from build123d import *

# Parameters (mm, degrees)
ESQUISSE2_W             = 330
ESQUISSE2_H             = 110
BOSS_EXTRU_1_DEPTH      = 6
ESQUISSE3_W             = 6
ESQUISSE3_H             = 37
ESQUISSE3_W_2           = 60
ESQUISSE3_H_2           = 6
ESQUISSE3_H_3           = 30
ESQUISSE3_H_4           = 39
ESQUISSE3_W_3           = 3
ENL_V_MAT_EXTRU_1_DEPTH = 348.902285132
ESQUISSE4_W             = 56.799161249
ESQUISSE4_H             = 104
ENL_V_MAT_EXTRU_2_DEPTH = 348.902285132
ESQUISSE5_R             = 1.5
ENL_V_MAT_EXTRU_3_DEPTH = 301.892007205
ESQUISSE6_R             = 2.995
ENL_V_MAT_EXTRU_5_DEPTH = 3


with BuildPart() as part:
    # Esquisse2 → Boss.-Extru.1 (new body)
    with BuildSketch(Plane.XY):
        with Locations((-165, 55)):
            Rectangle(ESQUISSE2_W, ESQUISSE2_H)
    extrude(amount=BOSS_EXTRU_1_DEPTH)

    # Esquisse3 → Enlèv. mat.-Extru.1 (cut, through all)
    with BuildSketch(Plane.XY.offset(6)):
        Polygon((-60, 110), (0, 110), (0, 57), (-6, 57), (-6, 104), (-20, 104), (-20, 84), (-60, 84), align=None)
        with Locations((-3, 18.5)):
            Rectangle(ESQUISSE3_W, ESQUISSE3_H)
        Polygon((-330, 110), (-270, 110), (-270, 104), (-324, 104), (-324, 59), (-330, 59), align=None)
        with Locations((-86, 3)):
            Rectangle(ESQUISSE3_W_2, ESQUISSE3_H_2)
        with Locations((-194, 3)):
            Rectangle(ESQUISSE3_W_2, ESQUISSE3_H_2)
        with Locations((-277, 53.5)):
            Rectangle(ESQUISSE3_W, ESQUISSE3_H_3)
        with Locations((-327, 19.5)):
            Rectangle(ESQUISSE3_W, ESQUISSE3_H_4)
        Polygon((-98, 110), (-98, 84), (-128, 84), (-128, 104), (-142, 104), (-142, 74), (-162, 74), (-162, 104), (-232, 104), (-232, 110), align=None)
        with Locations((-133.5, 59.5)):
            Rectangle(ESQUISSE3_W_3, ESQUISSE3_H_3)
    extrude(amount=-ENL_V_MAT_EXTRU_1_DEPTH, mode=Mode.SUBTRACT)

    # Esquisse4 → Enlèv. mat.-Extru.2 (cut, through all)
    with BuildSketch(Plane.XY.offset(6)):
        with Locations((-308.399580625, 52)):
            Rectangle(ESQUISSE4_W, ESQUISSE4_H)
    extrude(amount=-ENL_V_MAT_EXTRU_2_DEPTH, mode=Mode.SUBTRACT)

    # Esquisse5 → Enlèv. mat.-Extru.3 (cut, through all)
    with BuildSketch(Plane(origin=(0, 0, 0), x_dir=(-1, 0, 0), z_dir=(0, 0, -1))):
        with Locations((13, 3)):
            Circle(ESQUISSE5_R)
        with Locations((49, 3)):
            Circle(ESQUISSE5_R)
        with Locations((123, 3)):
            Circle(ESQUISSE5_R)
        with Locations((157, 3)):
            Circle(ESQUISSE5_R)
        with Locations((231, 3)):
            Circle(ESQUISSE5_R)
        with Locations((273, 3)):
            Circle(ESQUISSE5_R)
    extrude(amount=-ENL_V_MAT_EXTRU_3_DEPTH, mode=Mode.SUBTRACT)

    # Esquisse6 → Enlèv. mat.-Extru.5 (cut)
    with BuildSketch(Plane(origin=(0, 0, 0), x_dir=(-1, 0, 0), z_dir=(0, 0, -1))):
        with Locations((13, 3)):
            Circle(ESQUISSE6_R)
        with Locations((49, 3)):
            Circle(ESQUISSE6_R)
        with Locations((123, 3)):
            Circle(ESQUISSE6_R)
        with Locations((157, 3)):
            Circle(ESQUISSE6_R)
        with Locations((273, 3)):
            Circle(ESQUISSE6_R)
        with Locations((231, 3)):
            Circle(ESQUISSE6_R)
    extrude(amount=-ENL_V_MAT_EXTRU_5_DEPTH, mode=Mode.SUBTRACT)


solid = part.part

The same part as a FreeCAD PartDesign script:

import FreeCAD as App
import Part
import Sketcher

doc = App.newDocument("Part")
params = doc.addObject("Spreadsheet::Sheet", "Params")
for row, (alias, value) in enumerate([
    ("sketch1_width", "330 mm"),
    ("sketch1_height", "110 mm"),
    ("pad1_length", "6 mm"),
    ("sketch2_width", "60 mm"),
    ("sketch2_width2", "40 mm"),
    ("sketch2_width3", "14 mm"),
    ("sketch2_width4", "134 mm"),
    ("sketch2_width5", "70 mm"),
    ("sketch3_height", "104 mm"),
    ("sketch4_diameter", "3 mm"),
    ("sketch5_diameter", "5.99 mm"),
    ("pocket4_length", "3 mm"),
], start=1):
    params.set(f"A{row}", alias)
    params.set(f"B{row}", "=" + value)
    params.setAlias(f"B{row}", alias)

body = doc.addObject("PartDesign::Body", "Body")

# Sketch on XY plane
sketch1 = body.newObject("Sketcher::SketchObject", "Sketch")
sketch1.AttachmentSupport = (doc.getObject("XY_Plane"), [""])
sketch1.MapMode = "FlatFace"
sketch1.addGeometry(Part.LineSegment(App.Vector(-330, 110, 0), App.Vector(-330, 0, 0)), False)
sketch1.addGeometry(Part.LineSegment(App.Vector(-330, 0, 0), App.Vector(0, 0, 0)), False)
sketch1.addGeometry(Part.LineSegment(App.Vector(0, 0, 0), App.Vector(0, 110, 0)), False)
sketch1.addGeometry(Part.LineSegment(App.Vector(0, 110, 0), App.Vector(-330, 110, 0)), False)
sketch1.addConstraint(Sketcher.Constraint("Coincident", 0, 2, 1, 1))
sketch1.addConstraint(Sketcher.Constraint("Coincident", 1, 2, 2, 1))
sketch1.addConstraint(Sketcher.Constraint("Coincident", 2, 2, 3, 1))
sketch1.addConstraint(Sketcher.Constraint("Coincident", 3, 2, 0, 1))
sketch1.addConstraint(Sketcher.Constraint("Vertical", 0))
sketch1.addConstraint(Sketcher.Constraint("Horizontal", 1))
sketch1.addConstraint(Sketcher.Constraint("Vertical", 2))
sketch1.addConstraint(Sketcher.Constraint("Horizontal", 3))
sketch1.addConstraint(Sketcher.Constraint("Coincident", 1, 2, -1, 1))
sketch1.addConstraint(Sketcher.Constraint("DistanceX", 1, 1, 1, 2, 330.0))
sketch1.addConstraint(Sketcher.Constraint("DistanceY", 0, 2, 0, 1, 110.0))
sketch1.setExpression("Constraints[9]", "Params.sketch1_width")
sketch1.setExpression("Constraints[10]", "Params.sketch1_height")
pad1 = body.newObject("PartDesign::Pad", "Pad")
pad1.Profile = sketch1
pad1.setExpression("Length", "Params.pad1_length")

# Sketch on XY plane
sketch2 = body.newObject("Sketcher::SketchObject", "Sketch001")
sketch2.AttachmentSupport = (doc.getObject("XY_Plane"), [""])
sketch2.MapMode = "FlatFace"
sketch2.AttachmentOffset = App.Placement(App.Vector(0, 0, 6), App.Rotation())
sketch2.addGeometry(Part.LineSegment(App.Vector(0, 110, 0), App.Vector(-60, 110, 0)), False)
sketch2.addGeometry(Part.LineSegment(App.Vector(-60, 110, 0), App.Vector(-60, 84, 0)), False)
sketch2.addGeometry(Part.LineSegment(App.Vector(-60, 84, 0), App.Vector(-20, 84, 0)), False)
sketch2.addGeometry(Part.LineSegment(App.Vector(-20, 84, 0), App.Vector(-20, 104, 0)), False)
sketch2.addGeometry(Part.LineSegment(App.Vector(-20, 104, 0), App.Vector(-6, 104, 0)), False)
sketch2.addGeometry(Part.LineSegment(App.Vector(-6, 104, 0), App.Vector(-6, 57, 0)), False)
sketch2.addGeometry(Part.LineSegment(App.Vector(-6, 57, 0), App.Vector(0, 57, 0)), False)
sketch2.addGeometry(Part.LineSegment(App.Vector(0, 57, 0), App.Vector(0, 110, 0)), False)
sketch2.addGeometry(Part.LineSegment(App.Vector(-6, 37, 0), App.Vector(-6, 0, 0)), False)
sketch2.addGeometry(Part.LineSegment(App.Vector(-6, 0, 0), App.Vector(0, 0, 0)), False)
sketch2.addGeometry(Part.LineSegment(App.Vector(0, 0, 0), App.Vector(0, 37, 0)), False)
sketch2.addGeometry(Part.LineSegment(App.Vector(0, 37, 0), App.Vector(-6, 37, 0)), False)
sketch2.addGeometry(Part.LineSegment(App.Vector(-270, 110, 0), App.Vector(-330, 110, 0)), False)
sketch2.addGeometry(Part.LineSegment(App.Vector(-330, 110, 0), App.Vector(-330, 59, 0)), False)
sketch2.addGeometry(Part.LineSegment(App.Vector(-330, 59, 0), App.Vector(-324, 59, 0)), False)
sketch2.addGeometry(Part.LineSegment(App.Vector(-324, 59, 0), App.Vector(-324, 104, 0)), False)
sketch2.addGeometry(Part.LineSegment(App.Vector(-324, 104, 0), App.Vector(-270, 104, 0)), False)
sketch2.addGeometry(Part.LineSegment(App.Vector(-270, 104, 0), App.Vector(-270, 110, 0)), False)
sketch2.addGeometry(Part.LineSegment(App.Vector(-116, 6, 0), App.Vector(-116, 0, 0)), False)
sketch2.addGeometry(Part.LineSegment(App.Vector(-116, 0, 0), App.Vector(-56, 0, 0)), False)
sketch2.addGeometry(Part.LineSegment(App.Vector(-56, 0, 0), App.Vector(-56, 6, 0)), False)
sketch2.addGeometry(Part.LineSegment(App.Vector(-56, 6, 0), App.Vector(-116, 6, 0)), False)
sketch2.addGeometry(Part.LineSegment(App.Vector(-224, 6, 0), App.Vector(-224, 0, 0)), False)
sketch2.addGeometry(Part.LineSegment(App.Vector(-224, 0, 0), App.Vector(-164, 0, 0)), False)
sketch2.addGeometry(Part.LineSegment(App.Vector(-164, 0, 0), App.Vector(-164, 6, 0)), False)
sketch2.addGeometry(Part.LineSegment(App.Vector(-164, 6, 0), App.Vector(-224, 6, 0)), False)
sketch2.addGeometry(Part.LineSegment(App.Vector(-280, 68.5, 0), App.Vector(-280, 38.5, 0)), False)
sketch2.addGeometry(Part.LineSegment(App.Vector(-280, 38.5, 0), App.Vector(-274, 38.5, 0)), False)
sketch2.addGeometry(Part.LineSegment(App.Vector(-274, 38.5, 0), App.Vector(-274, 68.5, 0)), False)
sketch2.addGeometry(Part.LineSegment(App.Vector(-274, 68.5, 0), App.Vector(-280, 68.5, 0)), False)
sketch2.addGeometry(Part.LineSegment(App.Vector(-330, 39, 0), App.Vector(-330, 0, 0)), False)
sketch2.addGeometry(Part.LineSegment(App.Vector(-330, 0, 0), App.Vector(-324, 0, 0)), False)
sketch2.addGeometry(Part.LineSegment(App.Vector(-324, 0, 0), App.Vector(-324, 39, 0)), False)
sketch2.addGeometry(Part.LineSegment(App.Vector(-324, 39, 0), App.Vector(-330, 39, 0)), False)
sketch2.addGeometry(Part.LineSegment(App.Vector(-98, 84, 0), App.Vector(-98, 110, 0)), False)
sketch2.addGeometry(Part.LineSegment(App.Vector(-98, 110, 0), App.Vector(-232, 110, 0)), False)
sketch2.addGeometry(Part.LineSegment(App.Vector(-232, 110, 0), App.Vector(-232, 104, 0)), False)
sketch2.addGeometry(Part.LineSegment(App.Vector(-232, 104, 0), App.Vector(-162, 104, 0)), False)
sketch2.addGeometry(Part.LineSegment(App.Vector(-162, 104, 0), App.Vector(-162, 74, 0)), False)
sketch2.addGeometry(Part.LineSegment(App.Vector(-162, 74, 0), App.Vector(-142, 74, 0)), False)
sketch2.addGeometry(Part.LineSegment(App.Vector(-142, 74, 0), App.Vector(-142, 104, 0)), False)
sketch2.addGeometry(Part.LineSegment(App.Vector(-142, 104, 0), App.Vector(-128, 104, 0)), False)
sketch2.addGeometry(Part.LineSegment(App.Vector(-128, 104, 0), App.Vector(-128, 84, 0)), False)
sketch2.addGeometry(Part.LineSegment(App.Vector(-128, 84, 0), App.Vector(-98, 84, 0)), False)
sketch2.addGeometry(Part.LineSegment(App.Vector(-135, 74.5, 0), App.Vector(-135, 44.5, 0)), False)
sketch2.addGeometry(Part.LineSegment(App.Vector(-135, 44.5, 0), App.Vector(-132, 44.5, 0)), False)
sketch2.addGeometry(Part.LineSegment(App.Vector(-132, 44.5, 0), App.Vector(-132, 74.5, 0)), False)
sketch2.addGeometry(Part.LineSegment(App.Vector(-132, 74.5, 0), App.Vector(-135, 74.5, 0)), False)
sketch2.addConstraint(Sketcher.Constraint("Coincident", 0, 2, 1, 1))
sketch2.addConstraint(Sketcher.Constraint("Coincident", 1, 2, 2, 1))
sketch2.addConstraint(Sketcher.Constraint("Coincident", 2, 2, 3, 1))
sketch2.addConstraint(Sketcher.Constraint("Coincident", 3, 2, 4, 1))
sketch2.addConstraint(Sketcher.Constraint("Coincident", 4, 2, 5, 1))
sketch2.addConstraint(Sketcher.Constraint("Coincident", 5, 2, 6, 1))
sketch2.addConstraint(Sketcher.Constraint("Coincident", 6, 2, 7, 1))
sketch2.addConstraint(Sketcher.Constraint("Coincident", 7, 2, 0, 1))
sketch2.addConstraint(Sketcher.Constraint("Coincident", 8, 2, 9, 1))
sketch2.addConstraint(Sketcher.Constraint("Coincident", 9, 2, 10, 1))
sketch2.addConstraint(Sketcher.Constraint("Coincident", 10, 2, 11, 1))
sketch2.addConstraint(Sketcher.Constraint("Coincident", 11, 2, 8, 1))
sketch2.addConstraint(Sketcher.Constraint("Coincident", 12, 2, 13, 1))
sketch2.addConstraint(Sketcher.Constraint("Coincident", 13, 2, 14, 1))
sketch2.addConstraint(Sketcher.Constraint("Coincident", 14, 2, 15, 1))
sketch2.addConstraint(Sketcher.Constraint("Coincident", 15, 2, 16, 1))
sketch2.addConstraint(Sketcher.Constraint("Coincident", 16, 2, 17, 1))
sketch2.addConstraint(Sketcher.Constraint("Coincident", 17, 2, 12, 1))
sketch2.addConstraint(Sketcher.Constraint("Coincident", 18, 2, 19, 1))
sketch2.addConstraint(Sketcher.Constraint("Coincident", 19, 2, 20, 1))
sketch2.addConstraint(Sketcher.Constraint("Coincident", 20, 2, 21, 1))
sketch2.addConstraint(Sketcher.Constraint("Coincident", 21, 2, 18, 1))
sketch2.addConstraint(Sketcher.Constraint("Coincident", 22, 2, 23, 1))
sketch2.addConstraint(Sketcher.Constraint("Coincident", 23, 2, 24, 1))
sketch2.addConstraint(Sketcher.Constraint("Coincident", 24, 2, 25, 1))
sketch2.addConstraint(Sketcher.Constraint("Coincident", 25, 2, 22, 1))
sketch2.addConstraint(Sketcher.Constraint("Coincident", 26, 2, 27, 1))
sketch2.addConstraint(Sketcher.Constraint("Coincident", 27, 2, 28, 1))
sketch2.addConstraint(Sketcher.Constraint("Coincident", 28, 2, 29, 1))
sketch2.addConstraint(Sketcher.Constraint("Coincident", 29, 2, 26, 1))
sketch2.addConstraint(Sketcher.Constraint("Coincident", 30, 2, 31, 1))
sketch2.addConstraint(Sketcher.Constraint("Coincident", 31, 2, 32, 1))
sketch2.addConstraint(Sketcher.Constraint("Coincident", 32, 2, 33, 1))
sketch2.addConstraint(Sketcher.Constraint("Coincident", 33, 2, 30, 1))
sketch2.addConstraint(Sketcher.Constraint("Coincident", 34, 2, 35, 1))
sketch2.addConstraint(Sketcher.Constraint("Coincident", 35, 2, 36, 1))
sketch2.addConstraint(Sketcher.Constraint("Coincident", 36, 2, 37, 1))
sketch2.addConstraint(Sketcher.Constraint("Coincident", 37, 2, 38, 1))
sketch2.addConstraint(Sketcher.Constraint("Coincident", 38, 2, 39, 1))
sketch2.addConstraint(Sketcher.Constraint("Coincident", 39, 2, 40, 1))
sketch2.addConstraint(Sketcher.Constraint("Coincident", 40, 2, 41, 1))
sketch2.addConstraint(Sketcher.Constraint("Coincident", 41, 2, 42, 1))
sketch2.addConstraint(Sketcher.Constraint("Coincident", 42, 2, 43, 1))
sketch2.addConstraint(Sketcher.Constraint("Coincident", 43, 2, 34, 1))
sketch2.addConstraint(Sketcher.Constraint("Coincident", 44, 2, 45, 1))
sketch2.addConstraint(Sketcher.Constraint("Coincident", 45, 2, 46, 1))
sketch2.addConstraint(Sketcher.Constraint("Coincident", 46, 2, 47, 1))
sketch2.addConstraint(Sketcher.Constraint("Coincident", 47, 2, 44, 1))
sketch2.addConstraint(Sketcher.Constraint("Horizontal", 0))
sketch2.addConstraint(Sketcher.Constraint("Vertical", 1))
sketch2.addConstraint(Sketcher.Constraint("Horizontal", 2))
sketch2.addConstraint(Sketcher.Constraint("Vertical", 3))
sketch2.addConstraint(Sketcher.Constraint("Horizontal", 4))
sketch2.addConstraint(Sketcher.Constraint("Vertical", 5))
sketch2.addConstraint(Sketcher.Constraint("Horizontal", 6))
sketch2.addConstraint(Sketcher.Constraint("Vertical", 7))
sketch2.addConstraint(Sketcher.Constraint("Vertical", 8))
sketch2.addConstraint(Sketcher.Constraint("Horizontal", 9))
sketch2.addConstraint(Sketcher.Constraint("Vertical", 10))
sketch2.addConstraint(Sketcher.Constraint("Horizontal", 11))
sketch2.addConstraint(Sketcher.Constraint("Horizontal", 12))
sketch2.addConstraint(Sketcher.Constraint("Vertical", 13))
sketch2.addConstraint(Sketcher.Constraint("Horizontal", 14))
sketch2.addConstraint(Sketcher.Constraint("Vertical", 15))
sketch2.addConstraint(Sketcher.Constraint("Horizontal", 16))
sketch2.addConstraint(Sketcher.Constraint("Vertical", 17))
sketch2.addConstraint(Sketcher.Constraint("Vertical", 18))
sketch2.addConstraint(Sketcher.Constraint("Horizontal", 19))
sketch2.addConstraint(Sketcher.Constraint("Vertical", 20))
sketch2.addConstraint(Sketcher.Constraint("Horizontal", 21))
sketch2.addConstraint(Sketcher.Constraint("Vertical", 22))
sketch2.addConstraint(Sketcher.Constraint("Horizontal", 23))
sketch2.addConstraint(Sketcher.Constraint("Vertical", 24))
sketch2.addConstraint(Sketcher.Constraint("Horizontal", 25))
sketch2.addConstraint(Sketcher.Constraint("Vertical", 26))
sketch2.addConstraint(Sketcher.Constraint("Horizontal", 27))
sketch2.addConstraint(Sketcher.Constraint("Vertical", 28))
sketch2.addConstraint(Sketcher.Constraint("Horizontal", 29))
sketch2.addConstraint(Sketcher.Constraint("Vertical", 30))
sketch2.addConstraint(Sketcher.Constraint("Horizontal", 31))
sketch2.addConstraint(Sketcher.Constraint("Vertical", 32))
sketch2.addConstraint(Sketcher.Constraint("Horizontal", 33))
sketch2.addConstraint(Sketcher.Constraint("Vertical", 34))
sketch2.addConstraint(Sketcher.Constraint("Horizontal", 35))
sketch2.addConstraint(Sketcher.Constraint("Vertical", 36))
sketch2.addConstraint(Sketcher.Constraint("Horizontal", 37))
sketch2.addConstraint(Sketcher.Constraint("Vertical", 38))
sketch2.addConstraint(Sketcher.Constraint("Horizontal", 39))
sketch2.addConstraint(Sketcher.Constraint("Vertical", 40))
sketch2.addConstraint(Sketcher.Constraint("Horizontal", 41))
sketch2.addConstraint(Sketcher.Constraint("Vertical", 42))
sketch2.addConstraint(Sketcher.Constraint("Horizontal", 43))
sketch2.addConstraint(Sketcher.Constraint("Vertical", 44))
sketch2.addConstraint(Sketcher.Constraint("Horizontal", 45))
sketch2.addConstraint(Sketcher.Constraint("Vertical", 46))
sketch2.addConstraint(Sketcher.Constraint("Horizontal", 47))
sketch2.addConstraint(Sketcher.Constraint("Coincident", 9, 2, -1, 1))
sketch2.addConstraint(Sketcher.Constraint("PointOnObject", 6, 2, -2))
sketch2.addConstraint(Sketcher.Constraint("PointOnObject", 18, 2, -1))
sketch2.addConstraint(Sketcher.Constraint("PointOnObject", 22, 2, -1))
sketch2.addConstraint(Sketcher.Constraint("PointOnObject", 30, 2, -1))
sketch2.addConstraint(Sketcher.Constraint("Horizontal", 7, 2, 12, 2))
sketch2.addConstraint(Sketcher.Constraint("Horizontal", 4, 2, 15, 2))
sketch2.addConstraint(Sketcher.Constraint("Horizontal", 21, 2, 24, 2))
sketch2.addConstraint(Sketcher.Constraint("Horizontal", 17, 2, 34, 2))
sketch2.addConstraint(Sketcher.Constraint("Horizontal", 16, 2, 36, 2))
sketch2.addConstraint(Sketcher.Constraint("Horizontal", 37, 2, 40, 2))
sketch2.addConstraint(Sketcher.Constraint("Horizontal", 2, 2, 42, 2))
sketch2.addConstraint(Sketcher.Constraint("Vertical", 5, 2, 8, 2))
sketch2.addConstraint(Sketcher.Constraint("Vertical", 13, 2, 30, 2))
sketch2.addConstraint(Sketcher.Constraint("Vertical", 15, 2, 31, 2))
sketch2.addConstraint(Sketcher.Constraint("Equal", 0, 12))
sketch2.addConstraint(Sketcher.Constraint("Equal", 11, 14))
sketch2.addConstraint(Sketcher.Constraint("Equal", 12, 19))
sketch2.addConstraint(Sketcher.Constraint("Equal", 21, 23))
sketch2.addConstraint(Sketcher.Constraint("Equal", 14, 27))
sketch2.addConstraint(Sketcher.Constraint("Equal", 4, 41))
sketch2.addConstraint(Sketcher.Constraint("Equal", 39, 3))
sketch2.addConstraint(Sketcher.Constraint("Equal", 33, 17))
sketch2.addConstraint(Sketcher.Constraint("Equal", 17, 18))
sketch2.addConstraint(Sketcher.Constraint("Equal", 43, 26))
sketch2.addConstraint(Sketcher.Constraint("Equal", 28, 38))
sketch2.addConstraint(Sketcher.Constraint("Equal", 40, 44))
sketch2.addConstraint(Sketcher.Constraint("DistanceX", 0, 2, 0, 1, 60.0))
sketch2.addConstraint(Sketcher.Constraint("DistanceX", 2, 1, 2, 2, 40.0))
sketch2.addConstraint(Sketcher.Constraint("DistanceX", 4, 1, 4, 2, 14.0))
sketch2.addConstraint(Sketcher.Constraint("DistanceX", 35, 2, 35, 1, 134.0))
sketch2.addConstraint(Sketcher.Constraint("DistanceX", 37, 1, 37, 2, 70.0))
sketch2.addConstraint(Sketcher.Constraint("DistanceX", 39, 1, 39, 2, 20.0))
sketch2.addConstraint(Sketcher.Constraint("DistanceX", 45, 1, 45, 2, 3.0))
sketch2.addConstraint(Sketcher.Constraint("DistanceY", 5, 2, 5, 1, 47.0))
sketch2.addConstraint(Sketcher.Constraint("DistanceY", 8, 2, 8, 1, 37.0))
sketch2.addConstraint(Sketcher.Constraint("DistanceY", 13, 2, 13, 1, 51.0))
sketch2.addConstraint(Sketcher.Constraint("DistanceY", 30, 2, 30, 1, 39.0))
sketch2.addConstraint(Sketcher.Constraint("DistanceY", -1, 1, 0, 2, 110.0))
sketch2.addConstraint(Sketcher.Constraint("DistanceX", 12, 2, -1, 1, 330.0))
sketch2.addConstraint(Sketcher.Constraint("DistanceX", 18, 2, -1, 1, 116.0))
sketch2.addConstraint(Sketcher.Constraint("DistanceX", 22, 2, -1, 1, 224.0))
sketch2.addConstraint(Sketcher.Constraint("DistanceX", 26, 2, -1, 1, 280.0))
sketch2.addConstraint(Sketcher.Constraint("DistanceX", 34, 2, -1, 1, 98.0))
sketch2.addConstraint(Sketcher.Constraint("DistanceX", 44, 2, -1, 1, 135.0))
sketch2.addConstraint(Sketcher.Constraint("DistanceY", -1, 1, 26, 2, 38.5))
sketch2.addConstraint(Sketcher.Constraint("DistanceY", -1, 1, 44, 2, 44.5))
sketch2.setExpression("Constraints[123]", "Params.sketch2_width")
sketch2.setExpression("Constraints[124]", "Params.sketch2_width2")
sketch2.setExpression("Constraints[125]", "Params.sketch2_width3")
sketch2.setExpression("Constraints[126]", "Params.sketch2_width4")
sketch2.setExpression("Constraints[127]", "Params.sketch2_width5")
pocket1 = body.newObject("PartDesign::Pocket", "Pocket")
pocket1.Profile = sketch2
pocket1.Type = "ThroughAll"

# Sketch on XY plane
sketch3 = body.newObject("Sketcher::SketchObject", "Sketch002")
sketch3.AttachmentSupport = (doc.getObject("XY_Plane"), [""])
sketch3.MapMode = "FlatFace"
sketch3.AttachmentOffset = App.Placement(App.Vector(0, 0, 6), App.Rotation())
sketch3.addGeometry(Part.LineSegment(App.Vector(-337, 104, 0), App.Vector(-337, 0, 0)), False)
sketch3.addGeometry(Part.LineSegment(App.Vector(-337, 0, 0), App.Vector(-280, 0, 0)), False)
sketch3.addGeometry(Part.LineSegment(App.Vector(-280, 0, 0), App.Vector(-280, 104, 0)), False)
sketch3.addGeometry(Part.LineSegment(App.Vector(-280, 104, 0), App.Vector(-337, 104, 0)), False)
sketch3.addConstraint(Sketcher.Constraint("Coincident", 0, 2, 1, 1))
sketch3.addConstraint(Sketcher.Constraint("Coincident", 1, 2, 2, 1))
sketch3.addConstraint(Sketcher.Constraint("Coincident", 2, 2, 3, 1))
sketch3.addConstraint(Sketcher.Constraint("Coincident", 3, 2, 0, 1))
sketch3.addConstraint(Sketcher.Constraint("Vertical", 0))
sketch3.addConstraint(Sketcher.Constraint("Horizontal", 1))
sketch3.addConstraint(Sketcher.Constraint("Vertical", 2))
sketch3.addConstraint(Sketcher.Constraint("Horizontal", 3))
sketch3.addConstraint(Sketcher.Constraint("PointOnObject", 0, 2, -1))
sketch3.addConstraint(Sketcher.Constraint("DistanceY", 0, 2, 0, 1, 104.0))
sketch3.addConstraint(Sketcher.Constraint("DistanceX", 1, 2, -1, 1, 280.0))
sketch3.addConstraint(Sketcher.Constraint("DistanceX", 1, 1, 1, 2, 56.799161))
sketch3.setExpression("Constraints[9]", "Params.sketch3_height")
pocket2 = body.newObject("PartDesign::Pocket", "Pocket001")
pocket2.Profile = sketch3
pocket2.Type = "ThroughAll"

# Sketch on XY plane
sketch4 = body.newObject("Sketcher::SketchObject", "Sketch003")
sketch4.AttachmentSupport = (doc.getObject("XY_Plane"), [""])
sketch4.MapMode = "FlatFace"
sketch4.addGeometry(Part.Circle(App.Vector(-13, 3, 0), App.Vector(0, 0, 1), 1.5), False)
sketch4.addGeometry(Part.Circle(App.Vector(-49, 3, 0), App.Vector(0, 0, 1), 1.5), False)
sketch4.addGeometry(Part.Circle(App.Vector(-123, 3, 0), App.Vector(0, 0, 1), 1.5), False)
sketch4.addGeometry(Part.Circle(App.Vector(-157, 3, 0), App.Vector(0, 0, 1), 1.5), False)
sketch4.addGeometry(Part.Circle(App.Vector(-231, 3, 0), App.Vector(0, 0, 1), 1.5), False)
sketch4.addGeometry(Part.Circle(App.Vector(-273, 3, 0), App.Vector(0, 0, 1), 1.5), False)
sketch4.addConstraint(Sketcher.Constraint("Equal", 0, 1))
sketch4.addConstraint(Sketcher.Constraint("Equal", 1, 2))
sketch4.addConstraint(Sketcher.Constraint("Equal", 2, 3))
sketch4.addConstraint(Sketcher.Constraint("Equal", 3, 4))
sketch4.addConstraint(Sketcher.Constraint("Equal", 4, 5))
sketch4.addConstraint(Sketcher.Constraint("Horizontal", 0, 3, 1, 3))
sketch4.addConstraint(Sketcher.Constraint("Horizontal", 1, 3, 2, 3))
sketch4.addConstraint(Sketcher.Constraint("Horizontal", 2, 3, 3, 3))
sketch4.addConstraint(Sketcher.Constraint("Horizontal", 3, 3, 4, 3))
sketch4.addConstraint(Sketcher.Constraint("Horizontal", 4, 3, 5, 3))
sketch4.addConstraint(Sketcher.Constraint("Diameter", 0, 3.0))
sketch4.addConstraint(Sketcher.Constraint("DistanceX", 0, 3, -1, 1, 13.0))
sketch4.addConstraint(Sketcher.Constraint("DistanceY", -1, 1, 0, 3, 3.0))
sketch4.addConstraint(Sketcher.Constraint("DistanceX", 1, 3, -1, 1, 49.0))
sketch4.addConstraint(Sketcher.Constraint("DistanceX", 2, 3, -1, 1, 123.0))
sketch4.addConstraint(Sketcher.Constraint("DistanceX", 3, 3, -1, 1, 157.0))
sketch4.addConstraint(Sketcher.Constraint("DistanceX", 4, 3, -1, 1, 231.0))
sketch4.addConstraint(Sketcher.Constraint("DistanceX", 5, 3, -1, 1, 273.0))
sketch4.setExpression("Constraints[10]", "Params.sketch4_diameter")
pocket3 = body.newObject("PartDesign::Pocket", "Pocket002")
pocket3.Profile = sketch4
pocket3.Type = "ThroughAll"
pocket3.Reversed = True

# Sketch on XY plane
sketch5 = body.newObject("Sketcher::SketchObject", "Sketch004")
sketch5.AttachmentSupport = (doc.getObject("XY_Plane"), [""])
sketch5.MapMode = "FlatFace"
sketch5.addGeometry(Part.Circle(App.Vector(-13, 3, 0), App.Vector(0, 0, 1), 3), False)
sketch5.addGeometry(Part.Circle(App.Vector(-49, 3, 0), App.Vector(0, 0, 1), 3), False)
sketch5.addGeometry(Part.Circle(App.Vector(-123, 3, 0), App.Vector(0, 0, 1), 3), False)
sketch5.addGeometry(Part.Circle(App.Vector(-157, 3, 0), App.Vector(0, 0, 1), 3), False)
sketch5.addGeometry(Part.Circle(App.Vector(-273, 3, 0), App.Vector(0, 0, 1), 3), False)
sketch5.addGeometry(Part.Circle(App.Vector(-231, 3, 0), App.Vector(0, 0, 1), 3), False)
sketch5.addConstraint(Sketcher.Constraint("Equal", 0, 1))
sketch5.addConstraint(Sketcher.Constraint("Equal", 1, 2))
sketch5.addConstraint(Sketcher.Constraint("Equal", 2, 3))
sketch5.addConstraint(Sketcher.Constraint("Equal", 3, 4))
sketch5.addConstraint(Sketcher.Constraint("Equal", 4, 5))
sketch5.addConstraint(Sketcher.Constraint("Horizontal", 0, 3, 1, 3))
sketch5.addConstraint(Sketcher.Constraint("Horizontal", 1, 3, 2, 3))
sketch5.addConstraint(Sketcher.Constraint("Horizontal", 2, 3, 3, 3))
sketch5.addConstraint(Sketcher.Constraint("Horizontal", 3, 3, 4, 3))
sketch5.addConstraint(Sketcher.Constraint("Horizontal", 4, 3, 5, 3))
sketch5.addConstraint(Sketcher.Constraint("Diameter", 0, 5.99))
sketch5.addConstraint(Sketcher.Constraint("DistanceX", 0, 3, -1, 1, 13.0))
sketch5.addConstraint(Sketcher.Constraint("DistanceY", -1, 1, 0, 3, 3.0))
sketch5.addConstraint(Sketcher.Constraint("DistanceX", 1, 3, -1, 1, 49.0))
sketch5.addConstraint(Sketcher.Constraint("DistanceX", 2, 3, -1, 1, 123.0))
sketch5.addConstraint(Sketcher.Constraint("DistanceX", 3, 3, -1, 1, 157.0))
sketch5.addConstraint(Sketcher.Constraint("DistanceX", 4, 3, -1, 1, 273.0))
sketch5.addConstraint(Sketcher.Constraint("DistanceX", 5, 3, -1, 1, 231.0))
sketch5.setExpression("Constraints[10]", "Params.sketch5_diameter")
pocket4 = body.newObject("PartDesign::Pocket", "Pocket003")
pocket4.Profile = sketch5
pocket4.setExpression("Length", "Params.pocket4_length")
pocket4.Reversed = True

doc.recompute()
